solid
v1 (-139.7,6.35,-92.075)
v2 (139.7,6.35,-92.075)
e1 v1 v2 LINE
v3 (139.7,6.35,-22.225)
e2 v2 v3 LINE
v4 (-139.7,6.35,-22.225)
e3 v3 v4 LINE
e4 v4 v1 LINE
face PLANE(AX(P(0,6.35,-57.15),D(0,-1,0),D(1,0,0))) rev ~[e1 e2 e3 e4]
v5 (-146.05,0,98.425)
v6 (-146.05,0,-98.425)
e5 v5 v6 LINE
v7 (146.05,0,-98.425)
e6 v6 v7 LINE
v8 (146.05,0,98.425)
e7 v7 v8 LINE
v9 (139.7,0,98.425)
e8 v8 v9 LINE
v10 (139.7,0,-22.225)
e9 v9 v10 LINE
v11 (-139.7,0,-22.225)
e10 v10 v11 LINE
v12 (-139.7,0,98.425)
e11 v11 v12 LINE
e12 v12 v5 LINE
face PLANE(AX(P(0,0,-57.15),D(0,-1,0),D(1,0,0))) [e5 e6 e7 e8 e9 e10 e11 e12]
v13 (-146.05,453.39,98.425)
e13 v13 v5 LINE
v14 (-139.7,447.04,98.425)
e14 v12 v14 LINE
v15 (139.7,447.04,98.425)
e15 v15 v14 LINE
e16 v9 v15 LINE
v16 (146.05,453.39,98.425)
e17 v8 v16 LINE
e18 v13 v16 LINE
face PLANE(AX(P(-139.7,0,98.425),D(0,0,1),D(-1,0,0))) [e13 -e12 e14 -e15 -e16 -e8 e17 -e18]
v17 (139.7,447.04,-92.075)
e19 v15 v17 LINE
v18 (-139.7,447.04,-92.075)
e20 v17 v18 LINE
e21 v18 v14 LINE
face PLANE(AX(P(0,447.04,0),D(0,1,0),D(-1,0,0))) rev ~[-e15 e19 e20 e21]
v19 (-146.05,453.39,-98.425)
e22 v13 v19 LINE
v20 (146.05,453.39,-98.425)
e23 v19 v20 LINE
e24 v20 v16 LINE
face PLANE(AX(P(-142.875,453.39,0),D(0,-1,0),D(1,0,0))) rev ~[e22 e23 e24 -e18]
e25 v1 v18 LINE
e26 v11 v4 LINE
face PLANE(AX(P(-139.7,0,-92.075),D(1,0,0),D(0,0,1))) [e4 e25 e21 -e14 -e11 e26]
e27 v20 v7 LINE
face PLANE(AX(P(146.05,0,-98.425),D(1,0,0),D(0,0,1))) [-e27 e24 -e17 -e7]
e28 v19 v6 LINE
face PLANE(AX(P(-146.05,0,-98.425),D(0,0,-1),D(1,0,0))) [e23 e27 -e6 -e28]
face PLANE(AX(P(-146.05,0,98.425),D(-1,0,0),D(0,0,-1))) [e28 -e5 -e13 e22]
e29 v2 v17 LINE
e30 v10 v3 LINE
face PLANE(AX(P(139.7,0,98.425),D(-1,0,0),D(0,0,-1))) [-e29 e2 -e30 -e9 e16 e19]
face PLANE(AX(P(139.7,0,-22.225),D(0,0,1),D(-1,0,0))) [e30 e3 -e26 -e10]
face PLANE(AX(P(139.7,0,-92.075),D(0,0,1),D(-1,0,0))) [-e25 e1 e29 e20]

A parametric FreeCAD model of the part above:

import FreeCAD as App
import Part
import Sketcher

V = App.Vector
Q = App.Units.Quantity


def add_polygon(sketch, points):
    """Adds a closed chain of lines whose ends are joined by coincident constraints."""
    first, n = sketch.GeometryCount, len(points)
    for a, b in zip(points, points[1:] + points[:1]):
        sketch.addGeometry(Part.LineSegment(App.Vector(*a, 0), App.Vector(*b, 0)), False)
    for i in range(n):
        sketch.addConstraint(Sketcher.Constraint("Coincident", first + i, 2, first + (i + 1) % n, 1))

doc = App.newDocument("Part")
body = doc.addObject("PartDesign::Body", "Body")

sketch1 = body.newObject("Sketcher::SketchObject", "Sketch")
sketch1.AttachmentSupport = (doc.getObject("XZ_Plane"), [""])
sketch1.MapMode = "FlatFace"
add_polygon(sketch1, [(-140, 98), (-146, 98), (-146, -98), (146, -98), (146, 98), (140, 98), (140, -92), (-140, -92)])
sketch1.addConstraint([
    Sketcher.Constraint("Horizontal", 0),
    Sketcher.Constraint("Vertical", 1),
    Sketcher.Constraint("Horizontal", 2),
    Sketcher.Constraint("Vertical", 3),
    Sketcher.Constraint("Horizontal", 4),
    Sketcher.Constraint("Vertical", 5),
    Sketcher.Constraint("Horizontal", 6),
    Sketcher.Constraint("Vertical", 7),
    Sketcher.Constraint("Symmetric", 0, 2, 2, 2, -1, 1),
    Sketcher.Constraint("Symmetric", 4, 2, 7, 2, -2),
    Sketcher.Constraint("DistanceX", 6, 2, 6, 1, Q("11 in")),
    Sketcher.Constraint("DistanceX", 2, 1, 2, 2, Q("11.5 in")),
    Sketcher.Constraint("DistanceY", 5, 2, 5, 1, Q("7.5 in")),
    Sketcher.Constraint("DistanceY", 1, 2, 1, 1, Q("7.75 in")),
])
pad1 = body.newObject("PartDesign::Pad", "Pad")
pad1.Profile = sketch1
pad1.Length = Q("17.85 in")
pad1.Reversed = True

sketch2 = body.newObject("Sketcher::SketchObject", "Sketch001")
sketch2.AttachmentSupport = (doc.getObject("XZ_Plane"), [""])
sketch2.MapMode = "FlatFace"
add_polygon(sketch2, [(140, -22), (-140, -22), (-140, -98), (140, -98)])
sketch2.addConstraint([
    Sketcher.Constraint("Horizontal", 0),
    Sketcher.Constraint("Vertical", 1),
    Sketcher.Constraint("Horizontal", 2),
    Sketcher.Constraint("Vertical", 3),
    Sketcher.Constraint("DistanceX", 0, 2, 0, 1, Q("11 in")),
    Sketcher.Constraint("DistanceY", 1, 2, 1, 1, Q("3 in")),
    Sketcher.Constraint("DistanceX", 0, 2, -1, 1, Q("5.5 in")),
    Sketcher.Constraint("DistanceY", 0, 2, -1, 1, Q("0.875 in")),
])
pad2 = body.newObject("PartDesign::Pad", "Pad001")
pad2.Profile = sketch2
pad2.Length = Q("0.25 in")
pad2.Reversed = True

sketch3 = body.newObject("Sketcher::SketchObject", "Sketch002")
sketch3.AttachmentSupport = (doc.getObject("XZ_Plane"), [""])
sketch3.MapMode = "FlatFace"
sketch3.AttachmentOffset = App.Placement(V(0, 0, -17.85 * 25.4), App.Rotation())
add_polygon(sketch3, [(146, 98), (146, -98), (-146, -98), (-146, 98)])
sketch3.addConstraint([
    Sketcher.Constraint("Vertical", 0),
    Sketcher.Constraint("Horizontal", 1),
    Sketcher.Constraint("Vertical", 2),
    Sketcher.Constraint("Horizontal", 3),
    Sketcher.Constraint("Symmetric", 0, 2, 2, 2, -1, 1),
    Sketcher.Constraint("DistanceX", 1, 2, 1, 1, Q("11.5 in")),
    Sketcher.Constraint("DistanceY", 0, 2, 0, 1, Q("7.75 in")),
])
pad3 = body.newObject("PartDesign::Pad", "Pad002")
pad3.Profile = sketch3
pad3.Length = Q("0.25 in")

doc.recompute()
